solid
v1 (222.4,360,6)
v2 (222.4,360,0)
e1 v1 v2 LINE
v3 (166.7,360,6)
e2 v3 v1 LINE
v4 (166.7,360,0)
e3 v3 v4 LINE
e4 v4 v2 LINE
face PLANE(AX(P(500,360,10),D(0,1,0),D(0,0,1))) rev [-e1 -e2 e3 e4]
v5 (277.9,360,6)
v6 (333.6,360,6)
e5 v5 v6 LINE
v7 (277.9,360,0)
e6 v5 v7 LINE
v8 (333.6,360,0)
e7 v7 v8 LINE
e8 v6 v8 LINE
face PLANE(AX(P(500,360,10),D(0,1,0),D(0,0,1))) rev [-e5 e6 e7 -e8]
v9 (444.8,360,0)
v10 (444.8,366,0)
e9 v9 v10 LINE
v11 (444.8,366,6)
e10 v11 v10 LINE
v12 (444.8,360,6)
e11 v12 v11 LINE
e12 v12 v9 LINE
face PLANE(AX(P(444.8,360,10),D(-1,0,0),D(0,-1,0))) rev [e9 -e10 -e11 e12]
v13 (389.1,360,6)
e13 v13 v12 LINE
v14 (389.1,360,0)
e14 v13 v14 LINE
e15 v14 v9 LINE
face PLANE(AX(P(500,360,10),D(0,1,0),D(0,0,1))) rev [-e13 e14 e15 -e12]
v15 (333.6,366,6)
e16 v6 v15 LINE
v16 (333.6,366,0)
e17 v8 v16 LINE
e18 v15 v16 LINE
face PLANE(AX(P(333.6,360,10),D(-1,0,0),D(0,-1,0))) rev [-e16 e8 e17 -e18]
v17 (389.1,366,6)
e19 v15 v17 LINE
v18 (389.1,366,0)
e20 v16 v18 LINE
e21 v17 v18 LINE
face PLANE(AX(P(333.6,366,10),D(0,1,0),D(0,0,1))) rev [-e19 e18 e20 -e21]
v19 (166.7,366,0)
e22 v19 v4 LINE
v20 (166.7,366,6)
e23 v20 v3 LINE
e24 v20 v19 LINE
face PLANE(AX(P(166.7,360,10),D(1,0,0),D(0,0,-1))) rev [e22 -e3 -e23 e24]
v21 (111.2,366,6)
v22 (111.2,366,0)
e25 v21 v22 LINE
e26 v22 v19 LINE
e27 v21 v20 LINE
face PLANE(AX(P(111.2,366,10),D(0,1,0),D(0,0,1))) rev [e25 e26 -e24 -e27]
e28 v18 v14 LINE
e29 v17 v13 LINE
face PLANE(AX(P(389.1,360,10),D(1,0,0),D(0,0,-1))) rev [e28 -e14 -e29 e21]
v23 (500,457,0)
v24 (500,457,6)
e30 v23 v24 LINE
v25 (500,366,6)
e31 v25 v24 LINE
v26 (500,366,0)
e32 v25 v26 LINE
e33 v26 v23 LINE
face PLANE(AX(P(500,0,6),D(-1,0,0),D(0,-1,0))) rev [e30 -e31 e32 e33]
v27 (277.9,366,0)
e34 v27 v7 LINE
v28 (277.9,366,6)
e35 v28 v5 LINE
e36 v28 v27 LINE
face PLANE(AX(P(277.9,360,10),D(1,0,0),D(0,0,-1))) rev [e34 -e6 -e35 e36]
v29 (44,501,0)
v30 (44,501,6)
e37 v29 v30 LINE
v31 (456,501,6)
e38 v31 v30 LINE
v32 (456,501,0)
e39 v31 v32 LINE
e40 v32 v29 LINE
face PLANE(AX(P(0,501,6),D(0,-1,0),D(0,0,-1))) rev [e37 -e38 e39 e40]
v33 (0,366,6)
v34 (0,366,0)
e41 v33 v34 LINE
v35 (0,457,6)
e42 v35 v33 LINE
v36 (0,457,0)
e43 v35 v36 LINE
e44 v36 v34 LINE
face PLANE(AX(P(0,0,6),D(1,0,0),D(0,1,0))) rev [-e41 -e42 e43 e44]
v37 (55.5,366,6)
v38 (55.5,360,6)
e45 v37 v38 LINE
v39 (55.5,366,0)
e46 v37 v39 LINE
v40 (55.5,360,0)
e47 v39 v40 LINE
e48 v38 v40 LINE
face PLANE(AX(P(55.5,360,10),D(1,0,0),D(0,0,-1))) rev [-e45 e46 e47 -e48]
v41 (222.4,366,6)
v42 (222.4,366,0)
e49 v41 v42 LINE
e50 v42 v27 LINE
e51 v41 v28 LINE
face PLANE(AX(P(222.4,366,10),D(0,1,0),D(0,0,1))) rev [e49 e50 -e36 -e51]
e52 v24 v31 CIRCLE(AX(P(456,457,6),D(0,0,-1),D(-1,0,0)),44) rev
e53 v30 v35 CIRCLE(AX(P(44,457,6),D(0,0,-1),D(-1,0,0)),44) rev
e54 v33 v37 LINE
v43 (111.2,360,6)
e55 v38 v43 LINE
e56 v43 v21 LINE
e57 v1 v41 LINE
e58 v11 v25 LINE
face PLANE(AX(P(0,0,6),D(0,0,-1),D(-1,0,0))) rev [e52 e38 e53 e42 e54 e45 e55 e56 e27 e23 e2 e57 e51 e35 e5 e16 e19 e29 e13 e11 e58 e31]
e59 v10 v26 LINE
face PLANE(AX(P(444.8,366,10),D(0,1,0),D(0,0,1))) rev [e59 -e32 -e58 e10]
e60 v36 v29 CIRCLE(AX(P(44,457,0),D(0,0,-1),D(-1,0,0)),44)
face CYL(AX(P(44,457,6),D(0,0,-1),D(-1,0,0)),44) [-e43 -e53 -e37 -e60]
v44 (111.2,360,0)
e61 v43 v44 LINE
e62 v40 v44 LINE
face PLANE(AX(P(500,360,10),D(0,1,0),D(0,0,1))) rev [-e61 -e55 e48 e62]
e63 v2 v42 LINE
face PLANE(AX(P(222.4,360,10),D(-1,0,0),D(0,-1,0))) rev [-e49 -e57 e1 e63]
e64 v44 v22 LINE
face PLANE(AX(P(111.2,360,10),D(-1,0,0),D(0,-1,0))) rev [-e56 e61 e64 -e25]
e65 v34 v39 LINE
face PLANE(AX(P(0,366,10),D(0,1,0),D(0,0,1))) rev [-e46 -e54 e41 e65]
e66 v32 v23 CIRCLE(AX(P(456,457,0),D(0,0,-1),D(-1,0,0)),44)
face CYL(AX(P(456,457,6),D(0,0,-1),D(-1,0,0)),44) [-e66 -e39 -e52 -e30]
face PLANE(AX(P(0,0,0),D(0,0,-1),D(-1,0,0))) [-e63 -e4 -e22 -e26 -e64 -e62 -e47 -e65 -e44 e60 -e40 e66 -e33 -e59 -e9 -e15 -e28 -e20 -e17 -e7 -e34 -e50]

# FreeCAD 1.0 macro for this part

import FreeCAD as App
import Part
import Sketcher
from FreeCAD import Vector


def edges_at(feature, points):
    """Names of the edges that pass closest to the given points."""
    edges = feature.Shape.Edges
    near = lambda p: min(range(len(edges)), key=lambda i: edges[i].distToShape(Part.Vertex(*p))[0])
    return sorted({f"Edge{near(p) + 1}" for p in points})

doc = App.newDocument("Part")
body = doc.addObject("PartDesign::Body", "Body")

sketch1 = body.newObject("Sketcher::SketchObject", "Sketch")
sketch1.AttachmentSupport = (doc.getObject("XY_Plane"), [""])
sketch1.MapMode = "FlatFace"
sketch1.addGeometry([
    Part.LineSegment(Vector(0, 501, 0), Vector(0, 0, 0)),
    Part.LineSegment(Vector(0, 0, 0), Vector(500, 0, 0)),
    Part.LineSegment(Vector(500, 0, 0), Vector(500, 501, 0)),
    Part.LineSegment(Vector(500, 501, 0), Vector(0, 501, 0)),
], False)
sketch1.addConstraint([
    Sketcher.Constraint("Coincident", 0, 2, 1, 1),
    Sketcher.Constraint("Coincident", 1, 2, 2, 1),
    Sketcher.Constraint("Coincident", 2, 2, 3, 1),
    Sketcher.Constraint("Coincident", 3, 2, 0, 1),
    Sketcher.Constraint("Vertical", 0),
    Sketcher.Constraint("Horizontal", 1),
    Sketcher.Constraint("Vertical", 2),
    Sketcher.Constraint("Horizontal", 3),
    Sketcher.Constraint("Coincident", 0, 2, -1, 1),
    Sketcher.Constraint("DistanceX", 1, 1, 1, 2, 500.0),
    Sketcher.Constraint("DistanceY", 0, 2, 0, 1, 501.0),
])
pad1 = body.newObject("PartDesign::Pad", "Pad")
pad1.Profile = sketch1
pad1.Length = 6
doc.recompute()

fillet = body.newObject("PartDesign::Fillet", "Fillet")
fillet.Base = (pad1, edges_at(pad1, [
    (0, 501, 3),
    (500, 501, 3),
    (500, 0, 3),
    (0, 0, 3),
]))
fillet.Radius = 44

sketch2 = body.newObject("Sketcher::SketchObject", "Sketch001")
sketch2.AttachmentSupport = (doc.getObject("XY_Plane"), [""])
sketch2.MapMode = "FlatFace"
sketch2.addGeometry([
    Part.LineSegment(Vector(55.5, 366, 0), Vector(55.5, 360, 0)),
    Part.LineSegment(Vector(55.5, 360, 0), Vector(0, 360, 0)),
    Part.LineSegment(Vector(0, 360, 0), Vector(0, 366, 0)),
    Part.LineSegment(Vector(0, 366, 0), Vector(55.5, 366, 0)),
], False)
sketch2.addConstraint([
    Sketcher.Constraint("Coincident", 0, 2, 1, 1),
    Sketcher.Constraint("Coincident", 1, 2, 2, 1),
    Sketcher.Constraint("Coincident", 2, 2, 3, 1),
    Sketcher.Constraint("Coincident", 3, 2, 0, 1),
    Sketcher.Constraint("Vertical", 0),
    Sketcher.Constraint("Horizontal", 1),
    Sketcher.Constraint("Vertical", 2),
    Sketcher.Constraint("Horizontal", 3),
    Sketcher.Constraint("PointOnObject", 1, 2, -2),
    Sketcher.Constraint("DistanceY", 0, 2, 0, 1, 6.0),
    Sketcher.Constraint("DistanceX", 1, 2, 1, 1, 55.5),
    Sketcher.Constraint("DistanceY", -1, 1, 0, 2, 360.0),
])
pocket1 = body.newObject("PartDesign::Pocket", "Pocket")
pocket1.Profile = sketch2
pocket1.Length = 10
pocket1.Reversed = True
doc.recompute()

linearpattern = body.newObject("PartDesign::LinearPattern", "LinearPattern")
linearpattern.Originals = [pocket1]
linearpattern.Direction = (doc.getObject("X_Axis"), [""])
linearpattern.Mode = "offset"
linearpattern.Offset = 111.2
linearpattern.Occurrences = 5
body.Tip = linearpattern

sketch3 = body.newObject("Sketcher::SketchObject", "Sketch002")
sketch3.AttachmentSupport = (doc.getObject("XY_Plane"), [""])
sketch3.MapMode = "FlatFace"
sketch3.addGeometry([
    Part.LineSegment(Vector(500, 360, 0), Vector(500, 0, 0)),
    Part.LineSegment(Vector(500, 0, 0), Vector(0, 0, 0)),
    Part.LineSegment(Vector(0, 0, 0), Vector(0, 360, 0)),
    Part.LineSegment(Vector(0, 360, 0), Vector(500, 360, 0)),
], False)
sketch3.addConstraint([
    Sketcher.Constraint("Coincident", 0, 2, 1, 1),
    Sketcher.Constraint("Coincident", 1, 2, 2, 1),
    Sketcher.Constraint("Coincident", 2, 2, 3, 1),
    Sketcher.Constraint("Coincident", 3, 2, 0, 1),
    Sketcher.Constraint("Vertical", 0),
    Sketcher.Constraint("Horizontal", 1),
    Sketcher.Constraint("Vertical", 2),
    Sketcher.Constraint("Horizontal", 3),
    Sketcher.Constraint("Coincident", 1, 2, -1, 1),
    Sketcher.Constraint("DistanceX", 1, 2, 1, 1, 500.0),
    Sketcher.Constraint("DistanceY", 0, 2, 0, 1, 360.0),
])
pocket2 = body.newObject("PartDesign::Pocket", "Pocket001")
pocket2.Profile = sketch3
pocket2.Length = 10
pocket2.Reversed = True

doc.recompute()
